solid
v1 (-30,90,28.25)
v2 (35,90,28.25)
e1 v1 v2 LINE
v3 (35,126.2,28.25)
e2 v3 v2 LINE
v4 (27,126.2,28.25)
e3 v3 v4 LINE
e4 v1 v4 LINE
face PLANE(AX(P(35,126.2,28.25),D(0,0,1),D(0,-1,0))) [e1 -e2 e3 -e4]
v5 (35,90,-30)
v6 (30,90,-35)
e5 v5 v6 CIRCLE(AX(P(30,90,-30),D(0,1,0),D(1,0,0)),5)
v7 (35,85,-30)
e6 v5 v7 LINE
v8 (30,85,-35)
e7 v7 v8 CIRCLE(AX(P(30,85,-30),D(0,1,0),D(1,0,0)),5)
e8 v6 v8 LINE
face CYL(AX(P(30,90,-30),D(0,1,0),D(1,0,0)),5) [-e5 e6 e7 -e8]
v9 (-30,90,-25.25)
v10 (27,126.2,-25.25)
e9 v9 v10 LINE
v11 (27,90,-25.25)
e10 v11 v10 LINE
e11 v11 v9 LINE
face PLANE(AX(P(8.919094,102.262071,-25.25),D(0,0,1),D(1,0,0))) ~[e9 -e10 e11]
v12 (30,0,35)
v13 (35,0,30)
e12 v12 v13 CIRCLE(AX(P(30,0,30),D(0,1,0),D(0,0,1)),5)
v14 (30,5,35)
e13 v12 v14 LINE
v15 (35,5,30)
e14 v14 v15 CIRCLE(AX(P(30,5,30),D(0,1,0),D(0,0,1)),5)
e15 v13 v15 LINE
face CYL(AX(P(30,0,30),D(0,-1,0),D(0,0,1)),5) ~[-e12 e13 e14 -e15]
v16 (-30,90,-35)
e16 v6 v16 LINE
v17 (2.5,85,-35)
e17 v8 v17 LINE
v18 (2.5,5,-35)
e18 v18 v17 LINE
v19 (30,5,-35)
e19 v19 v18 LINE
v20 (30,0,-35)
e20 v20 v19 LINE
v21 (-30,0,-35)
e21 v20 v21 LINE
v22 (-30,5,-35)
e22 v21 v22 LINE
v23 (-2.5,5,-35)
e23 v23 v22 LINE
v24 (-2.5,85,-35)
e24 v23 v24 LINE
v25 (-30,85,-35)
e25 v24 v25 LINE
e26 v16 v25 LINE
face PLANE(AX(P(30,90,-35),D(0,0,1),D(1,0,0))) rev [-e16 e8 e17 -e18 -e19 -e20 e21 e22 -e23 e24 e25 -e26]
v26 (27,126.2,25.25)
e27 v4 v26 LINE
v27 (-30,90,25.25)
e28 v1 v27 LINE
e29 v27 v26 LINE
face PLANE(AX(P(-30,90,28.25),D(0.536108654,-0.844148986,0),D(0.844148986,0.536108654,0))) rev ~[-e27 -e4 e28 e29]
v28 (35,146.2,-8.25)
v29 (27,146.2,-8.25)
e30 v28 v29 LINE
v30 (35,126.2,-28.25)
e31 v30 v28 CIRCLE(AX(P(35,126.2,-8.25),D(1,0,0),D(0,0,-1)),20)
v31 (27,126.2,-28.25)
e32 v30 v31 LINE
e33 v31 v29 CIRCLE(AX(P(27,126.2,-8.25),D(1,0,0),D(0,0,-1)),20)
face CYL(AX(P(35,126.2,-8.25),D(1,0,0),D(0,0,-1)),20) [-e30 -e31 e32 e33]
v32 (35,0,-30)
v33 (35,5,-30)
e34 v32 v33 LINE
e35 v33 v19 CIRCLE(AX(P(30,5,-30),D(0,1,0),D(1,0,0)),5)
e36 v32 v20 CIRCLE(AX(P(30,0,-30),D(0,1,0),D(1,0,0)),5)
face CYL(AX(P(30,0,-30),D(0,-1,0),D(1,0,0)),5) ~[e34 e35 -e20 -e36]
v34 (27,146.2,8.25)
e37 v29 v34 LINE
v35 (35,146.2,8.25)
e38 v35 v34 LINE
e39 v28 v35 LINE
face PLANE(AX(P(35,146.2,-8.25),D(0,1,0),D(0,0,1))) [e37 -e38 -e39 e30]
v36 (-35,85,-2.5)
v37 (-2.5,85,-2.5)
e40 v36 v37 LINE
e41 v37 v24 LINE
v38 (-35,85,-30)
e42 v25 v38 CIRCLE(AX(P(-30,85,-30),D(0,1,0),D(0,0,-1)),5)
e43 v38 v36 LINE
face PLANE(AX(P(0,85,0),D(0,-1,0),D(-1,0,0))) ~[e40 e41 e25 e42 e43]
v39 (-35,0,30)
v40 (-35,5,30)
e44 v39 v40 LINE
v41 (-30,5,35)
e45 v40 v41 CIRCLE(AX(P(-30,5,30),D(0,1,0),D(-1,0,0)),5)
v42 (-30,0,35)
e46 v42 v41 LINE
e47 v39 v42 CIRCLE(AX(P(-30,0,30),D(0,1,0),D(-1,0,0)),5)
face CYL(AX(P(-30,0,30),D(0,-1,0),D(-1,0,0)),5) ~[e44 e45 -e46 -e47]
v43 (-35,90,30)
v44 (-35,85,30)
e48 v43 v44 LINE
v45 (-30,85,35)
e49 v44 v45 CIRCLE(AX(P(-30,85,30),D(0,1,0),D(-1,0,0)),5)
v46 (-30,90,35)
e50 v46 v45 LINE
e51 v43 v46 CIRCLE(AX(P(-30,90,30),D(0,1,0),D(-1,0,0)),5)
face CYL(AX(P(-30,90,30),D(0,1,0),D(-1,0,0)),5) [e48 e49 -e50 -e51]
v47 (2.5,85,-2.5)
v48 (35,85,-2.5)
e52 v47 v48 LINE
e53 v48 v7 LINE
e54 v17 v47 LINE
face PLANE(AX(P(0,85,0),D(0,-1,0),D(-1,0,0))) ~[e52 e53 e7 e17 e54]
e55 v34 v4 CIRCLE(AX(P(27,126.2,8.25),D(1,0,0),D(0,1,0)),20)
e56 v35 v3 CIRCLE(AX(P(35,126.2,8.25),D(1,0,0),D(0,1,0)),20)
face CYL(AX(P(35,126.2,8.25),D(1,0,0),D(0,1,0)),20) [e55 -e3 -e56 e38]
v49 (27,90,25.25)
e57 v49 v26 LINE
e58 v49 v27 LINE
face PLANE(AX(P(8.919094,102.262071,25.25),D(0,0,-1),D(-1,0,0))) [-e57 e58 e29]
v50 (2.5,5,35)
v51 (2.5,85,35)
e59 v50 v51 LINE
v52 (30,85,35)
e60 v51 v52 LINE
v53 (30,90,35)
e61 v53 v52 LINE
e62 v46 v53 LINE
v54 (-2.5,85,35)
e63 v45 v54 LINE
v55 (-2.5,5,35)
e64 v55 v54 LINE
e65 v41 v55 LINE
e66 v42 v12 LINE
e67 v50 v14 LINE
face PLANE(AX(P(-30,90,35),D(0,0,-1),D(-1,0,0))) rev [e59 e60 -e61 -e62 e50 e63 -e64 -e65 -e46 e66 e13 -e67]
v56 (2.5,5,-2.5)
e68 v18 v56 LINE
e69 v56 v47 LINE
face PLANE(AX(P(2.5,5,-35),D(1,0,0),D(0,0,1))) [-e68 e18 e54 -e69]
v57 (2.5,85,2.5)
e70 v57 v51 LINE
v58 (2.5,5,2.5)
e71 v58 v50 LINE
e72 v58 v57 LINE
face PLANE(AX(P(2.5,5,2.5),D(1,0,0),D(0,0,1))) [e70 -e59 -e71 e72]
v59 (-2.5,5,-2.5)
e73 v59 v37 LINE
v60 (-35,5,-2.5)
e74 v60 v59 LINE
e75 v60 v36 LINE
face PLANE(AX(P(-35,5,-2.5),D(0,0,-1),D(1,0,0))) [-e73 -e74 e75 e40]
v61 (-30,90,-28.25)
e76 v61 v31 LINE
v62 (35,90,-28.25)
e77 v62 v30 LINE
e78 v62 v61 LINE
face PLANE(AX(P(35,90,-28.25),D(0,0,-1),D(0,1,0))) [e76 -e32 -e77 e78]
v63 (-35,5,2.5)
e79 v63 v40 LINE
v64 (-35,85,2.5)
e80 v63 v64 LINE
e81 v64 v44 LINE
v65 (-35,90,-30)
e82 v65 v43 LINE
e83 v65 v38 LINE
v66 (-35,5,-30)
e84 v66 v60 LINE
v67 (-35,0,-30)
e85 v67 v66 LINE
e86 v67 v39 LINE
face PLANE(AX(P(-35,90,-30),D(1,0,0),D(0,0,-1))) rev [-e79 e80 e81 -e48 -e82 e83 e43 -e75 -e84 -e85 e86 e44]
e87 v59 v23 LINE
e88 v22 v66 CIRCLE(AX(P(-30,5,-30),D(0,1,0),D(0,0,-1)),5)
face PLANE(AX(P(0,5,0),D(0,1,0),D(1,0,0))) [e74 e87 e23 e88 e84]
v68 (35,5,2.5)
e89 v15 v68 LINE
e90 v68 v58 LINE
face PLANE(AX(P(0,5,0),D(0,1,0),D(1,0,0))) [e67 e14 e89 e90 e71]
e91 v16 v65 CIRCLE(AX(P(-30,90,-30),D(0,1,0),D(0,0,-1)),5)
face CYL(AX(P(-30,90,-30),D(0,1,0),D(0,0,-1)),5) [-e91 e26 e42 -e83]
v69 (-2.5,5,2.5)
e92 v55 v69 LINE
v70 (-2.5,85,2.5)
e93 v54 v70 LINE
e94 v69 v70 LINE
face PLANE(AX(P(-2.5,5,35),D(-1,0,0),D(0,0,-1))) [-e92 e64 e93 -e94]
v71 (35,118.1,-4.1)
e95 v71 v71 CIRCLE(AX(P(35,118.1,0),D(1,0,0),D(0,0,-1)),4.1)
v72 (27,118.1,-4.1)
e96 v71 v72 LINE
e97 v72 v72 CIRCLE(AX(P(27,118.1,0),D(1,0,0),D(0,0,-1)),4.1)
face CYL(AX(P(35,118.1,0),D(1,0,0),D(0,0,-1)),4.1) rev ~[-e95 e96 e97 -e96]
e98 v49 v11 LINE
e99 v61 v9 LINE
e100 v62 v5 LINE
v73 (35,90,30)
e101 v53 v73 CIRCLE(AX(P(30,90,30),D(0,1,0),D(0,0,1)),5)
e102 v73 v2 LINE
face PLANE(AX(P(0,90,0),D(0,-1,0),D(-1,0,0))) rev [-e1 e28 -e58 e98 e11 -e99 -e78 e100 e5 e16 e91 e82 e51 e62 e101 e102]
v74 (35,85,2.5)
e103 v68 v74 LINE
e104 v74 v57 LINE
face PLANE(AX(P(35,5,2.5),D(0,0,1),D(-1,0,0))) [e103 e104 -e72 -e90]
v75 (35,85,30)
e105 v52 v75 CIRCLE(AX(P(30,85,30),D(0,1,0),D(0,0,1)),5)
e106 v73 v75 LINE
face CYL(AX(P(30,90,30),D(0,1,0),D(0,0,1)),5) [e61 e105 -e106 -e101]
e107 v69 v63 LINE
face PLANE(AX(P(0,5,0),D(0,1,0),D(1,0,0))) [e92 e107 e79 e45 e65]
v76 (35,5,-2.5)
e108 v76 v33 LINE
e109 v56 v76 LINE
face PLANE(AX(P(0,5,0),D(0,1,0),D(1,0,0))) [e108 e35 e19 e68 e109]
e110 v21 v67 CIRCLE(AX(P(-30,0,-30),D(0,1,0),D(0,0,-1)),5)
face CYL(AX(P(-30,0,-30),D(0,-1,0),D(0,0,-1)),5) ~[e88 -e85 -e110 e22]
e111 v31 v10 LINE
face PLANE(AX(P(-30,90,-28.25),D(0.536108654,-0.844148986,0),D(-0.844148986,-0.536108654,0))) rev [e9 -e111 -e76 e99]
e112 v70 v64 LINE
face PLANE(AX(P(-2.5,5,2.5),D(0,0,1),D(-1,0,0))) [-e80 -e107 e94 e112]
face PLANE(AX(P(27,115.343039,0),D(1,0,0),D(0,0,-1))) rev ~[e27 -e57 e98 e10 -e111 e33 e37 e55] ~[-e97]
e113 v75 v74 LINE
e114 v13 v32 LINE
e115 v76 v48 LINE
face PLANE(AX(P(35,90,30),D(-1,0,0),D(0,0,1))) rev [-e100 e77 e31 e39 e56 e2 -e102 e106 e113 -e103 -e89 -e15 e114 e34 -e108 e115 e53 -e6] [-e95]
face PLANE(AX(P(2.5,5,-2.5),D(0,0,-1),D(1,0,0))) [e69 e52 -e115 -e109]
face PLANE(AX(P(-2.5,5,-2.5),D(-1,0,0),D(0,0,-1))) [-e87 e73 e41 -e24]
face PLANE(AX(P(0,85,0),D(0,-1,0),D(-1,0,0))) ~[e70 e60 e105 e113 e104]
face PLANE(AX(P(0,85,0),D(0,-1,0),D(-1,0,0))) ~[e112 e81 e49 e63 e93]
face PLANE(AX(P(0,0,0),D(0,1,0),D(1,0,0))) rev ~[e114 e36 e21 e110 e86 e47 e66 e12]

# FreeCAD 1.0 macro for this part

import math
import FreeCAD as App
import Part
import Sketcher


def add_polygon(sketch, points):
    """Adds a closed chain of lines whose ends are joined by coincident constraints."""
    first, n = sketch.GeometryCount, len(points)
    for a, b in zip(points, points[1:] + points[:1]):
        sketch.addGeometry(Part.LineSegment(App.Vector(*a, 0), App.Vector(*b, 0)), False)
    for i in range(n):
        sketch.addConstraint(Sketcher.Constraint("Coincident", first + i, 2, first + (i + 1) % n, 1))

doc = App.newDocument("Part")
body = doc.addObject("PartDesign::Body", "Body")

# Sketch on XZ plane
sketch1 = doc.addObject("Sketcher::SketchObject", "Sketch")
body.addObject(sketch1)
sketch1.AttachmentSupport = (doc.XZ_Plane, [""])
sketch1.MapMode = "FlatFace"
sketch1.addGeometry([
    Part.LineSegment(App.Vector(-30, 35, 0), App.Vector(30, 35, 0)),  # 0
    Part.ArcOfCircle(Part.Circle(App.Vector(30, 30, 0), App.Vector(0, 0, 1), 5), math.radians(0), math.radians(90)),  # 1
    Part.LineSegment(App.Vector(35, 30, 0), App.Vector(35, -30, 0)),  # 2
    Part.ArcOfCircle(Part.Circle(App.Vector(30, -30, 0), App.Vector(0, 0, 1), 5), math.radians(-90), math.radians(0)),  # 3
    Part.LineSegment(App.Vector(30, -35, 0), App.Vector(-30, -35, 0)),  # 4
    Part.ArcOfCircle(Part.Circle(App.Vector(-30, -30, 0), App.Vector(0, 0, 1), 5), math.radians(180), math.radians(270)),  # 5
    Part.LineSegment(App.Vector(-35, -30, 0), App.Vector(-35, 30, 0)),  # 6
    Part.ArcOfCircle(Part.Circle(App.Vector(-30, 30, 0), App.Vector(0, 0, 1), 5), math.radians(90), math.radians(180)),  # 7
], False)
sketch1.addConstraint([
    Sketcher.Constraint("Tangent", 0, 2, 1, 2),
    Sketcher.Constraint("Tangent", 1, 1, 2, 1),
    Sketcher.Constraint("Tangent", 2, 2, 3, 2),
    Sketcher.Constraint("Tangent", 3, 1, 4, 1),
    Sketcher.Constraint("Tangent", 4, 2, 5, 2),
    Sketcher.Constraint("Tangent", 5, 1, 6, 1),
    Sketcher.Constraint("Tangent", 6, 2, 7, 2),
    Sketcher.Constraint("Tangent", 7, 1, 0, 1),
    Sketcher.Constraint("Horizontal", 0),
    Sketcher.Constraint("Vertical", 2),
    Sketcher.Constraint("Horizontal", 4),
    Sketcher.Constraint("Vertical", 6),
    Sketcher.Constraint("Equal", 1, 3),
    Sketcher.Constraint("Equal", 3, 5),
    Sketcher.Constraint("Equal", 5, 7),
    Sketcher.Constraint("Symmetric", 1, 3, 5, 3, -1, 1),
    Sketcher.Constraint("Equal", 4, 2),
    Sketcher.Constraint("Radius", 1, 5.0),
    Sketcher.Constraint("DistanceX", 0, 1, 0, 2, 60.0),
])
pad1 = doc.addObject("PartDesign::Pad", "Pad")
body.addObject(pad1)
pad1.Profile = sketch1
pad1.Length = 5
pad1.Reversed = True

# Sketch on XZ plane
sketch2 = doc.addObject("Sketcher::SketchObject", "Sketch001")
body.addObject(sketch2)
sketch2.AttachmentSupport = (doc.XZ_Plane, [""])
sketch2.MapMode = "FlatFace"
sketch2.AttachmentOffset = App.Placement(App.Vector(0, 0, -5), App.Rotation())
add_polygon(sketch2, [(-2.5, -35), (-2.5, -2.5), (-35, -2.5), (-35, 2.5), (-2.5, 2.5), (-2.5, 35), (2.5, 35), (2.5, 2.5), (35, 2.5), (35, -2.5), (2.5, -2.5), (2.5, -35)])  # lines 0-11
sketch2.addConstraint([
    Sketcher.Constraint("Vertical", 0),
    Sketcher.Constraint("Horizontal", 1),
    Sketcher.Constraint("Vertical", 2),
    Sketcher.Constraint("Horizontal", 3),
    Sketcher.Constraint("Vertical", 4),
    Sketcher.Constraint("Horizontal", 5),
    Sketcher.Constraint("Vertical", 6),
    Sketcher.Constraint("Horizontal", 7),
    Sketcher.Constraint("Vertical", 8),
    Sketcher.Constraint("Horizontal", 9),
    Sketcher.Constraint("Vertical", 10),
    Sketcher.Constraint("Horizontal", 11),
    Sketcher.Constraint("Symmetric", 0, 2, 6, 2, -1, 1),
    Sketcher.Constraint("Symmetric", 2, 2, 8, 2, -1, 1),
    Sketcher.Constraint("Symmetric", 4, 2, 10, 2, -1, 1),
    Sketcher.Constraint("Symmetric", 3, 2, 6, 2, -2),
    Sketcher.Constraint("Equal", 9, 0),
    Sketcher.Constraint("Equal", 11, 2),
    Sketcher.Constraint("DistanceX", 5, 1, 5, 2, 5.0),
    Sketcher.Constraint("DistanceX", 1, 2, 1, 1, 32.5),
])
pad2 = doc.addObject("PartDesign::Pad", "Pad001")
body.addObject(pad2)
pad2.Profile = sketch2
pad2.Length = 80
pad2.Reversed = True
doc.recompute()

datumplane = doc.addObject("PartDesign::Plane", "DatumPlane")
body.addObject(datumplane)
datumplane.AttachmentSupport = (doc.XZ_Plane, [""])
datumplane.MapMode = "FlatFace"
datumplane.AttachmentOffset = App.Placement(App.Vector(0, 0, -45), App.Rotation())
mirrored = doc.addObject("PartDesign::Mirrored", "Mirrored")
body.addObject(mirrored)
mirrored.Originals = [pad1]
mirrored.MirrorPlane = (datumplane, [""])
body.Tip = mirrored

# Sketch on YZ plane
sketch3 = doc.addObject("Sketcher::SketchObject", "Sketch002")
body.addObject(sketch3)
sketch3.AttachmentSupport = (doc.YZ_Plane, [""])
sketch3.MapMode = "FlatFace"
sketch3.AttachmentOffset = App.Placement(App.Vector(0, 0, 35), App.Rotation())
sketch3.addGeometry([
    Part.LineSegment(App.Vector(90, 28.25, 0), App.Vector(90, -28.25, 0)),  # 0
    Part.LineSegment(App.Vector(90, -28.25, 0), App.Vector(126.2, -28.25, 0)),  # 1
    Part.ArcOfCircle(Part.Circle(App.Vector(126.2, -8.25, 0), App.Vector(0, 0, 1), 20), math.radians(-90), math.radians(0)),  # 2
    Part.LineSegment(App.Vector(146.2, -8.25, 0), App.Vector(146.2, 8.25, 0)),  # 3
    Part.ArcOfCircle(Part.Circle(App.Vector(126.2, 8.25, 0), App.Vector(0, 0, 1), 20), math.radians(0), math.radians(90)),  # 4
    Part.LineSegment(App.Vector(126.2, 28.25, 0), App.Vector(90, 28.25, 0)),  # 5
    Part.Circle(App.Vector(118.1, 0, 0), App.Vector(0, 0, 1), 4.1),  # 6
], False)
sketch3.addConstraint([
    Sketcher.Constraint("Coincident", 0, 2, 1, 1),
    Sketcher.Constraint("Tangent", 1, 2, 2, 1),
    Sketcher.Constraint("Tangent", 2, 2, 3, 1),
    Sketcher.Constraint("Tangent", 3, 2, 4, 1),
    Sketcher.Constraint("Tangent", 4, 2, 5, 1),
    Sketcher.Constraint("Coincident", 5, 2, 0, 1),
    Sketcher.Constraint("Vertical", 0),
    Sketcher.Constraint("Horizontal", 1),
    Sketcher.Constraint("Vertical", 3),
    Sketcher.Constraint("Horizontal", 5),
    Sketcher.Constraint("Equal", 2, 4),
    Sketcher.Constraint("PointOnObject", 6, 3, -1),
    Sketcher.Constraint("Radius", 2, 20.0),
    Sketcher.Constraint("Diameter", 6, 8.2),
    Sketcher.Constraint("DistanceX", 1, 1, 1, 2, 36.2),
    Sketcher.Constraint("DistanceY", 0, 2, 0, 1, 56.5),
    Sketcher.Constraint("DistanceX", -1, 1, 0, 2, 90.0),
    Sketcher.Constraint("DistanceX", -1, 1, 6, 3, 118.1),
    Sketcher.Constraint("DistanceY", 2, 3, -1, 1, 8.25),
])
pad3 = doc.addObject("PartDesign::Pad", "Pad002")
body.addObject(pad3)
pad3.Profile = sketch3
pad3.Length = 8
pad3.Reversed = True

# Sketch on XY plane
sketch4 = doc.addObject("Sketcher::SketchObject", "Sketch003")
body.addObject(sketch4)
sketch4.AttachmentSupport = (doc.XY_Plane, [""])
sketch4.MapMode = "FlatFace"
sketch4.AttachmentOffset = App.Placement(App.Vector(0, 0, 28.25), App.Rotation())
add_polygon(sketch4, [(-30, 90), (35, 90), (35, 126.2), (27, 126.2)])  # lines 0-3
sketch4.addConstraint([
    Sketcher.Constraint("Horizontal", 0),
    Sketcher.Constraint("Vertical", 1),
    Sketcher.Constraint("Horizontal", 2),
    Sketcher.Constraint("DistanceX", 0, 1, 0, 2, 65.0),
    Sketcher.Constraint("DistanceX", 2, 2, 2, 1, 8.0),
    Sketcher.Constraint("DistanceY", 1, 1, 1, 2, 36.2),
    Sketcher.Constraint("DistanceX", -1, 1, 0, 2, 35.0),
    Sketcher.Constraint("DistanceY", -1, 1, 0, 2, 90.0),
])
pad4 = doc.addObject("PartDesign::Pad", "Pad003")
body.addObject(pad4)
pad4.Profile = sketch4
pad4.Length = 3
pad4.Reversed = True
doc.recompute()

mirrored2 = doc.addObject("PartDesign::Mirrored", "Mirrored001")
body.addObject(mirrored2)
mirrored2.Originals = [pad4]
mirrored2.MirrorPlane = (doc.XY_Plane, [""])
body.Tip = mirrored2

doc.recompute()
